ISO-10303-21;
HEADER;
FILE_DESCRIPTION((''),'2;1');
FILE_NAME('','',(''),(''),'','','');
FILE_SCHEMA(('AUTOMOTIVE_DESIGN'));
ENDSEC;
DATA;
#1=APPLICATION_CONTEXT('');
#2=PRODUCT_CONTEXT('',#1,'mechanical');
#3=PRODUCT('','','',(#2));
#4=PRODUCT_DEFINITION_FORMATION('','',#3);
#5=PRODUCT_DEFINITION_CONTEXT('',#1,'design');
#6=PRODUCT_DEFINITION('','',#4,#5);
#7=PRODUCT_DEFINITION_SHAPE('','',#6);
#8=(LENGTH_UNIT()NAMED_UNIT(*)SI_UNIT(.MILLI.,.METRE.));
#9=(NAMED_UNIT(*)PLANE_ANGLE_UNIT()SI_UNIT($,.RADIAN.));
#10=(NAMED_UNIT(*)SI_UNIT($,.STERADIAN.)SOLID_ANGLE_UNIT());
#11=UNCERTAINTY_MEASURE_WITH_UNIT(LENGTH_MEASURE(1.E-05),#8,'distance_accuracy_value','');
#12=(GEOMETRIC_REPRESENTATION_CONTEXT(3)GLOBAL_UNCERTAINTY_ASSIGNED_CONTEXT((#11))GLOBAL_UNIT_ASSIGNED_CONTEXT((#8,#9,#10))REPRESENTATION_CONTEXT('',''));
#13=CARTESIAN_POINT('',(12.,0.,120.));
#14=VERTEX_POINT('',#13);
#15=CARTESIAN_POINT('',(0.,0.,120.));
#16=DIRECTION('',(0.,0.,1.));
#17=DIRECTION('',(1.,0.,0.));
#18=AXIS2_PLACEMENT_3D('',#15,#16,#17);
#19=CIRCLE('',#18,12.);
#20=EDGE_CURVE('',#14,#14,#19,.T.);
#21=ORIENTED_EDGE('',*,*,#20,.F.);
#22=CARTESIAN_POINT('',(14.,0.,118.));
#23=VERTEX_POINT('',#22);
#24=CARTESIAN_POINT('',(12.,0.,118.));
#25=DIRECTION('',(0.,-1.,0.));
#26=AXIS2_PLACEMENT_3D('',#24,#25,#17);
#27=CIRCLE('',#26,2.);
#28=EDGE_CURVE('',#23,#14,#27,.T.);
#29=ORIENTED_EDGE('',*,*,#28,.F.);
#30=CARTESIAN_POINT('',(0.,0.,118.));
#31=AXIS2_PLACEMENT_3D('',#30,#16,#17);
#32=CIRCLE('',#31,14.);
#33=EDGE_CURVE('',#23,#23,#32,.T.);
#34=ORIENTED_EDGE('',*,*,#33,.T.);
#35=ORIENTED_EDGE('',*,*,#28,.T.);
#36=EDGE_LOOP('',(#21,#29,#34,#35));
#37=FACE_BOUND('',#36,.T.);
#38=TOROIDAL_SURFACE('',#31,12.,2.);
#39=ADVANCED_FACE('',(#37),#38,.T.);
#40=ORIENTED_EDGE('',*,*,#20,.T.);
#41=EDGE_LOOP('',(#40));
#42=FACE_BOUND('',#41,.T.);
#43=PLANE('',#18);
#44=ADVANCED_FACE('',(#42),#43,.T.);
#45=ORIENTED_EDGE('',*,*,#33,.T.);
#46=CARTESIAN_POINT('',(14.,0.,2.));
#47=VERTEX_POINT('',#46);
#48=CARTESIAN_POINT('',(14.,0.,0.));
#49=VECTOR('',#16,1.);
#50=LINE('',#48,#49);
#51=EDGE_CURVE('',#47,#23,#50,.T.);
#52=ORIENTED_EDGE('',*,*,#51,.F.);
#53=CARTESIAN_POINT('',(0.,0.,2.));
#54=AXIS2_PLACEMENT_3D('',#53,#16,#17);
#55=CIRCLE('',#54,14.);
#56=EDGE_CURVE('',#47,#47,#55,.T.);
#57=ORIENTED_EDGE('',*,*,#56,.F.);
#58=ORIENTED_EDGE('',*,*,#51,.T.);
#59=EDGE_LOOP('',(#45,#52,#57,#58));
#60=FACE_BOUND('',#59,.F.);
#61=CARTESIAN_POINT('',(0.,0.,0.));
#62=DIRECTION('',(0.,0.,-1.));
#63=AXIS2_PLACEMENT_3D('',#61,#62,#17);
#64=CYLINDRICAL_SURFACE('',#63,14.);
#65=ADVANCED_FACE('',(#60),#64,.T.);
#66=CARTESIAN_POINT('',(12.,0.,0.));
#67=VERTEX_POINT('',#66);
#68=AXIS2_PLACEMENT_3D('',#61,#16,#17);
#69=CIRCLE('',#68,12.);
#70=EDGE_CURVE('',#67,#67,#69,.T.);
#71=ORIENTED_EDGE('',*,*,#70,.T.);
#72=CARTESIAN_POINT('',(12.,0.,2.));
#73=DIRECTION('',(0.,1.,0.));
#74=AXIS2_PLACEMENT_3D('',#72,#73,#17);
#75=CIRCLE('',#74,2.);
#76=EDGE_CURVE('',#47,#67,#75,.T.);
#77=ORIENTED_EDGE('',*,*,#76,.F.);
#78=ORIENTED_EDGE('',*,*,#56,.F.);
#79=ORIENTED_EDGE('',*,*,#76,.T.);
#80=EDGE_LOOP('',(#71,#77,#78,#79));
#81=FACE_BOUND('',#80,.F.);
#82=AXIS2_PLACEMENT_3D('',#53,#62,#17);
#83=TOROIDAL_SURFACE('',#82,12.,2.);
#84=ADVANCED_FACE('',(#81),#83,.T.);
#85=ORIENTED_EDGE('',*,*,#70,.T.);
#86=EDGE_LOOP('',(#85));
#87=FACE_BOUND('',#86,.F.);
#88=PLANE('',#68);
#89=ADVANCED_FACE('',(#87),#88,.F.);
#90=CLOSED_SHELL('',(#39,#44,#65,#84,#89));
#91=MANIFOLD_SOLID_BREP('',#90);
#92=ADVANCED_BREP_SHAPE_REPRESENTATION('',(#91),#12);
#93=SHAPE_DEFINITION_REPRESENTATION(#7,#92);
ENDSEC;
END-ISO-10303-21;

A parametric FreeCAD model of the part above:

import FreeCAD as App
import Part
import Sketcher
Q = App.Units.Quantity


def edges_at(feature, points):
    """Names of the edges that pass closest to the given points."""
    edges = feature.Shape.Edges
    near = lambda p: min(range(len(edges)), key=lambda i: edges[i].distToShape(Part.Vertex(*p))[0])
    return sorted({f"Edge{near(p) + 1}" for p in points})

doc = App.newDocument("Part")
params = doc.addObject("Spreadsheet::Sheet", "Params")
for row, (alias, value) in enumerate([
    ("sketch1_diameter", "28 mm"),
    ("pad1_length", "120 mm"),
    ("fillet_radius", "2 mm"),
], start=1):
    params.set(f"A{row}", alias)
    params.set(f"B{row}", "=" + value)
    params.setAlias(f"B{row}", alias)

body = doc.addObject("PartDesign::Body", "Body")

# Sketch on XY plane
sketch1 = body.newObject("Sketcher::SketchObject", "Sketch")
sketch1.AttachmentSupport = (doc.getObject("XY_Plane"), [""])
sketch1.MapMode = "FlatFace"
sketch1.addGeometry(Part.Circle(App.Vector(0, 0, 0), App.Vector(0, 0, 1), 14), False)
sketch1.addConstraint([
    Sketcher.Constraint("Coincident", 0, 3, -1, 1),
    Sketcher.Constraint("Diameter", 0, Q("28 mm")),
])
sketch1.setExpression("Constraints[1]", "Params.sketch1_diameter")
pad1 = body.newObject("PartDesign::Pad", "Pad")
pad1.Profile = sketch1
pad1.setExpression("Length", "Params.pad1_length")
doc.recompute()

fillet = body.newObject("PartDesign::Fillet", "Fillet")
fillet.Base = (pad1, edges_at(pad1, [(-14, 0, 120), (-14, 0, 0)]))
fillet.setExpression("Radius", "Params.fillet_radius")

doc.recompute()
